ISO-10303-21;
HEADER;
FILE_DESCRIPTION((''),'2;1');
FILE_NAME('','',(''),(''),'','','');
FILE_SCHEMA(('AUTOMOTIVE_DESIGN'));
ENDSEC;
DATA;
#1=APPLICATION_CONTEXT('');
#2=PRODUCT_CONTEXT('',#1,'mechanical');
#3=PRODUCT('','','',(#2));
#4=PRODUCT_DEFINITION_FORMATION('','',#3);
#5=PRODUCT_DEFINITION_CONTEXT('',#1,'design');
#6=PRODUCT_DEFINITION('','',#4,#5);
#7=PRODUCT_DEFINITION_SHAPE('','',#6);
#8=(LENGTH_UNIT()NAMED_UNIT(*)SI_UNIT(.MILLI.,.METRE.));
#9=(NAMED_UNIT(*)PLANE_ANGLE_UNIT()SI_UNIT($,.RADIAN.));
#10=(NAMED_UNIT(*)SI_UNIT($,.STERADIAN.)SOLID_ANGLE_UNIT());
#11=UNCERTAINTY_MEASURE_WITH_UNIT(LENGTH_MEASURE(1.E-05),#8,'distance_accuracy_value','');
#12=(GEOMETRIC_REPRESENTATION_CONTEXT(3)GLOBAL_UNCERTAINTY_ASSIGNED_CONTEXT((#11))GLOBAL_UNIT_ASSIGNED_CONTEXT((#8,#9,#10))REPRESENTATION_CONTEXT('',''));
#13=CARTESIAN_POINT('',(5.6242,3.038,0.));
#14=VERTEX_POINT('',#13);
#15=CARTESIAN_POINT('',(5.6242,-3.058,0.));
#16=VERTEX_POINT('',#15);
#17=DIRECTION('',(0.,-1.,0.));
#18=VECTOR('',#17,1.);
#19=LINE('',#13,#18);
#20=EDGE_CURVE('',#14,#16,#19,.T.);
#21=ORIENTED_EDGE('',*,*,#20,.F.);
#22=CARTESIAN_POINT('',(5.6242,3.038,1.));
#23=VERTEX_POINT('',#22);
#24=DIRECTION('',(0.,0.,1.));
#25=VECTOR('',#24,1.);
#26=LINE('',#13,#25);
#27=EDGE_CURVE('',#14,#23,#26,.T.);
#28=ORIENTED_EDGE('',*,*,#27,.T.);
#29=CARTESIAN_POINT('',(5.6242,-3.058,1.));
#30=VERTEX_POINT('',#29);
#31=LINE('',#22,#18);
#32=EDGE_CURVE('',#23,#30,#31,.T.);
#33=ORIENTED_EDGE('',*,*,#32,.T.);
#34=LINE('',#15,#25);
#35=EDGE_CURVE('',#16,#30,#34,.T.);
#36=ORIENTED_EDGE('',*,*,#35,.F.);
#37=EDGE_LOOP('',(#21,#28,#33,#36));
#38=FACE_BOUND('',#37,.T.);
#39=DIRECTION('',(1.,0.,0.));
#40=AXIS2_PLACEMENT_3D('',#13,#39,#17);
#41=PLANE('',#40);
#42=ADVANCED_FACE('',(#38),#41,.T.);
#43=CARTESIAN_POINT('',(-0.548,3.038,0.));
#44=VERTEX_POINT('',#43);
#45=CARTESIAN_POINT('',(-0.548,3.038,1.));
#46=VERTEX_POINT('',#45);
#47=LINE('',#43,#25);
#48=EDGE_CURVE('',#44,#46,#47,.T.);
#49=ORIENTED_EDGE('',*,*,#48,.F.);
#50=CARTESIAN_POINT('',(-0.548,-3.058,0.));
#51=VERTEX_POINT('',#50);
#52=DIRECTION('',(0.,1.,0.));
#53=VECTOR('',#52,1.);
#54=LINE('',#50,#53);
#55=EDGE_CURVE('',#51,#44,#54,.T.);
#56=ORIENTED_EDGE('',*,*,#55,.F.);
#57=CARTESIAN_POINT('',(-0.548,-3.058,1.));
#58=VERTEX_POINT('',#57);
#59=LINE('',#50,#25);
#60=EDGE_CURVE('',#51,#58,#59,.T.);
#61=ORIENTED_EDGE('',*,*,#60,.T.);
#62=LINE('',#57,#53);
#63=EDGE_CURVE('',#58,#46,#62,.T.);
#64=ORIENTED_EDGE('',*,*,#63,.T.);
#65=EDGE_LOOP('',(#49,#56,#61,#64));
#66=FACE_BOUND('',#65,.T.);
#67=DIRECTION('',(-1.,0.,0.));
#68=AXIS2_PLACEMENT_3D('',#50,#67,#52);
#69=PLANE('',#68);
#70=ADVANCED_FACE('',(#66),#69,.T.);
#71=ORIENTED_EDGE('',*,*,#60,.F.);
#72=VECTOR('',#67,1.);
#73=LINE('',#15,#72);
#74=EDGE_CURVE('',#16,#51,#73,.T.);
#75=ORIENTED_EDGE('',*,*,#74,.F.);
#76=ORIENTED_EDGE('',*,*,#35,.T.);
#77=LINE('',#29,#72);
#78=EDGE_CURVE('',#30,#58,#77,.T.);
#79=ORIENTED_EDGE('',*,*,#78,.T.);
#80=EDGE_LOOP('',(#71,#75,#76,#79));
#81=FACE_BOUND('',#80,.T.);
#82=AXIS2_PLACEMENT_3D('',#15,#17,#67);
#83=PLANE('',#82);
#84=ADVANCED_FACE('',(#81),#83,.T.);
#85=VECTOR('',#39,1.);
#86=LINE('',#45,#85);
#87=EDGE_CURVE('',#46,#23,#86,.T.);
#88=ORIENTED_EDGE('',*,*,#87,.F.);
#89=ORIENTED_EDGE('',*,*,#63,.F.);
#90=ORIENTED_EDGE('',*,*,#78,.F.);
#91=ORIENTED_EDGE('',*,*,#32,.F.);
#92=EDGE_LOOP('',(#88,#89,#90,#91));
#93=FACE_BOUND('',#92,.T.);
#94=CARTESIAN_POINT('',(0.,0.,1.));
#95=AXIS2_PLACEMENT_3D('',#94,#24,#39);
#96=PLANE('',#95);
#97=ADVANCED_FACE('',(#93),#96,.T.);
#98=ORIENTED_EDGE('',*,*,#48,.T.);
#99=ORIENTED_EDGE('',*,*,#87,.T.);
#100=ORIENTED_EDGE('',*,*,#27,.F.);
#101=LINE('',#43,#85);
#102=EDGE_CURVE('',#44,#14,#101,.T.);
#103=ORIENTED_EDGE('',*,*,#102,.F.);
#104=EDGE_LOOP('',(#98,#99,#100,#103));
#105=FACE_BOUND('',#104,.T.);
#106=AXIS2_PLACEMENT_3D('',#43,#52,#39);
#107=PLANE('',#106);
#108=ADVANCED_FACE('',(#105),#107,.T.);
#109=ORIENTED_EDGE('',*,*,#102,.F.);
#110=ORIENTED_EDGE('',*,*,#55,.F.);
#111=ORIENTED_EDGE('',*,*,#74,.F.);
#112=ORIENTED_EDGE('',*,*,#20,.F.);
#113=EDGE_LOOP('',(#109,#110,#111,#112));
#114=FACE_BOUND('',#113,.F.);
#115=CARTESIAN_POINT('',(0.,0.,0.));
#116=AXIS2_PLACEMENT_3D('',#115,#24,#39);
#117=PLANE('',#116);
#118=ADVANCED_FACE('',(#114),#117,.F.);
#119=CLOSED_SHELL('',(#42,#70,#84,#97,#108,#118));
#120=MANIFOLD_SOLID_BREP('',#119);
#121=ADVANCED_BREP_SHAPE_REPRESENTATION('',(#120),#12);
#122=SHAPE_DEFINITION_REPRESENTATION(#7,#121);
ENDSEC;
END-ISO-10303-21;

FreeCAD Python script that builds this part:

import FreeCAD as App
import Part
import Sketcher
Q = App.Units.Quantity

doc = App.newDocument("Part")
body = doc.addObject("PartDesign::Body", "Body")

sketch1 = body.newObject("Sketcher::SketchObject", "Sketch")
sketch1.AttachmentSupport = (doc.getObject("XY_Plane"), [""])
sketch1.MapMode = "FlatFace"
sketch1.addGeometry([
    Part.LineSegment(App.Vector(5.6242, 3.038, 0), App.Vector(-0.548, 3.038, 0)),
    Part.LineSegment(App.Vector(-0.548, 3.038, 0), App.Vector(-0.548, -3.058, 0)),
    Part.LineSegment(App.Vector(-0.548, -3.058, 0), App.Vector(5.6242, -3.058, 0)),
    Part.LineSegment(App.Vector(5.6242, -3.058, 0), App.Vector(5.6242, 3.038, 0)),
], False)
sketch1.addConstraint([
    Sketcher.Constraint("Coincident", 0, 2, 1, 1),
    Sketcher.Constraint("Coincident", 1, 2, 2, 1),
    Sketcher.Constraint("Coincident", 2, 2, 3, 1),
    Sketcher.Constraint("Coincident", 3, 2, 0, 1),
    Sketcher.Constraint("Horizontal", 0),
    Sketcher.Constraint("Vertical", 1),
    Sketcher.Constraint("Horizontal", 2),
    Sketcher.Constraint("Vertical", 3),
    Sketcher.Constraint("DistanceY", 1, 2, 1, 1, Q("0.24 in")),
    Sketcher.Constraint("DistanceX", 0, 2, 0, 1, Q("0.243 in")),
    Sketcher.Constraint("DistanceY", -1, 1, 0, 2, Q("0.1196 in")),
    Sketcher.Constraint("DistanceX", 0, 2, -1, 1, Q("0.548 mm")),
])
pad1 = body.newObject("PartDesign::Pad", "Pad")
pad1.Profile = sketch1
pad1.Length = 1

doc.recompute()
